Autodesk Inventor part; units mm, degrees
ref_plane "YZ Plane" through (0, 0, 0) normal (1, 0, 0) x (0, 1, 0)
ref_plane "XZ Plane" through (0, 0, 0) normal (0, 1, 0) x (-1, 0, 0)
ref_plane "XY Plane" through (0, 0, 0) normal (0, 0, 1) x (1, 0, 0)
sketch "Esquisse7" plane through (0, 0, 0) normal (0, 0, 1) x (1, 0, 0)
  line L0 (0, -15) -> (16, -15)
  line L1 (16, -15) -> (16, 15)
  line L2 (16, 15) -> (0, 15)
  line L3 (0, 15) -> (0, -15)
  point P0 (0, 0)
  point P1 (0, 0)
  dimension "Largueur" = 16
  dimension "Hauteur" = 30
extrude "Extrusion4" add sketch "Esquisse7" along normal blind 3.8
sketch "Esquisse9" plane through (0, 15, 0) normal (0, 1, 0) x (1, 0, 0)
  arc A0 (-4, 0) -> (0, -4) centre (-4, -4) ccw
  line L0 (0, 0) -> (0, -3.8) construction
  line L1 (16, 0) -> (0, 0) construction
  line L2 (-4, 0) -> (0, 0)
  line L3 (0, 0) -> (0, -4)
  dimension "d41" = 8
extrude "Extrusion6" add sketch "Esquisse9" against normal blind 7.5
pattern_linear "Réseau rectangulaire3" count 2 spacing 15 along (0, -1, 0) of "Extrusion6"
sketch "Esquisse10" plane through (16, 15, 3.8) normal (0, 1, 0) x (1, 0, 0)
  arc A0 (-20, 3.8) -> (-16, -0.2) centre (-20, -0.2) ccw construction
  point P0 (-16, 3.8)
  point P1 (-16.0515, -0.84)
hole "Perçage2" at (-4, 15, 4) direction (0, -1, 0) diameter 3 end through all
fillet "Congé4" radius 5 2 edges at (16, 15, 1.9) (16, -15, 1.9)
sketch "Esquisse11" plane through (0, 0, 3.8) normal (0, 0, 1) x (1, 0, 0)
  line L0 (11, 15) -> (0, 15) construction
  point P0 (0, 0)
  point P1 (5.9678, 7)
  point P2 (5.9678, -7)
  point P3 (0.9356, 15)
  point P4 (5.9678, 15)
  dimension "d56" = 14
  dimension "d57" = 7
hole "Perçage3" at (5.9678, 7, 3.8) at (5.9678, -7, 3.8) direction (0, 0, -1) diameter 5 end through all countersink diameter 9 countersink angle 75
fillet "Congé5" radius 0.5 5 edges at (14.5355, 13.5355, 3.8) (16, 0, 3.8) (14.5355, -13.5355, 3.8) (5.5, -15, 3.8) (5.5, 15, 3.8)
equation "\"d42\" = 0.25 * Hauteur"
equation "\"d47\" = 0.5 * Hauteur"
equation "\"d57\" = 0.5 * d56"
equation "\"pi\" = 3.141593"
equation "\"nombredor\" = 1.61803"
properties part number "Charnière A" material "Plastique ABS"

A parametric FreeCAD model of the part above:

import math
import FreeCAD as App
import Part
import Sketcher
from FreeCAD import Vector


def edges_at(feature, points):
    """Names of the edges that pass closest to the given points."""
    edges = feature.Shape.Edges
    near = lambda p: min(range(len(edges)), key=lambda i: edges[i].distToShape(Part.Vertex(*p))[0])
    return sorted({f"Edge{near(p) + 1}" for p in points})


def add_polygon(sketch, points):
    """Adds a closed chain of lines whose ends are joined by coincident constraints."""
    first, n = sketch.GeometryCount, len(points)
    for a, b in zip(points, points[1:] + points[:1]):
        sketch.addGeometry(Part.LineSegment(App.Vector(*a, 0), App.Vector(*b, 0)), False)
    for i in range(n):
        sketch.addConstraint(Sketcher.Constraint("Coincident", first + i, 2, first + (i + 1) % n, 1))

doc = App.newDocument("Part")
body = doc.addObject("PartDesign::Body", "Body")

# Sketch on XY plane
sketch1 = body.newObject("Sketcher::SketchObject", "Sketch")
sketch1.AttachmentSupport = (doc.getObject("XY_Plane"), [""])
sketch1.MapMode = "FlatFace"
add_polygon(sketch1, [(0, 15), (0, -15), (16, -15), (16, 15)])  # lines 0-3
sketch1.addConstraint(Sketcher.Constraint("Vertical", 0))
sketch1.addConstraint(Sketcher.Constraint("Horizontal", 1))
sketch1.addConstraint(Sketcher.Constraint("Vertical", 2))
sketch1.addConstraint(Sketcher.Constraint("Horizontal", 3))
sketch1.addConstraint(Sketcher.Constraint("Symmetric", 0, 2, 3, 2, -1, 1))
sketch1.addConstraint(Sketcher.Constraint("DistanceX", 1, 1, 1, 2, 16.0))
sketch1.addConstraint(Sketcher.Constraint("DistanceY", 0, 2, 0, 1, 30.0))
pad1 = body.newObject("PartDesign::Pad", "Pad")
pad1.Profile = sketch1
pad1.Length = 3.8

# Sketch on XZ plane
sketch2 = body.newObject("Sketcher::SketchObject", "Sketch001")
sketch2.AttachmentSupport = (doc.getObject("XZ_Plane"), [""])
sketch2.MapMode = "FlatFace"
sketch2.AttachmentOffset = App.Placement(Vector(0, 0, -15), App.Rotation())
sketch2.addGeometry(Part.LineSegment(Vector(0, 0, 0), Vector(-4, 0, 0)), False)
sketch2.addGeometry(Part.ArcOfCircle(Part.Circle(Vector(-4, 4, 0), Vector(0, 0, 1), 4), math.radians(0), math.radians(270)), False)
sketch2.addGeometry(Part.LineSegment(Vector(0, 4, 0), Vector(0, 0, 0)), False)
sketch2.addConstraint(Sketcher.Constraint("Tangent", 0, 2, 1, 2))
sketch2.addConstraint(Sketcher.Constraint("Tangent", 1, 1, 2, 1))
sketch2.addConstraint(Sketcher.Constraint("Coincident", 2, 2, 0, 1))
sketch2.addConstraint(Sketcher.Constraint("Horizontal", 0))
sketch2.addConstraint(Sketcher.Constraint("Vertical", 2))
sketch2.addConstraint(Sketcher.Constraint("Coincident", 2, 2, -1, 1))
sketch2.addConstraint(Sketcher.Constraint("Radius", 1, 4.0))
pad2 = body.newObject("PartDesign::Pad", "Pad001")
pad2.Profile = sketch2
pad2.Length = 7.5
doc.recompute()

linearpattern = body.newObject("PartDesign::LinearPattern", "LinearPattern")
linearpattern.Originals = [pad2]
linearpattern.Direction = (doc.getObject("Y_Axis"), [""])
linearpattern.Mode = "offset"
linearpattern.Offset = 15
linearpattern.Occurrences = 2
linearpattern.Reversed = True
body.Tip = linearpattern

# Sketch on XZ plane
sketch3 = body.newObject("Sketcher::SketchObject", "Sketch002")
sketch3.AttachmentSupport = (doc.getObject("XZ_Plane"), [""])
sketch3.MapMode = "FlatFace"
sketch3.AttachmentOffset = App.Placement(Vector(0, 0, -15), App.Rotation())
sketch3.addGeometry(Part.Circle(Vector(-4, 4, 0), Vector(0, 0, 1), 1.5), False)
sketch3.addConstraint(Sketcher.Constraint("Diameter", 0, 3.0))
sketch3.addConstraint(Sketcher.Constraint("DistanceX", 0, 3, -1, 1, 4.0))
sketch3.addConstraint(Sketcher.Constraint("DistanceY", -1, 1, 0, 3, 4.0))
doc.recompute()
hole = body.newObject("PartDesign::Hole", "Hole")
hole.Profile = sketch3
hole.ThreadType = "None"
hole.Diameter = 3
hole.DepthType = "ThroughAll"
hole.Reversed = True
doc.recompute()

fillet = body.newObject("PartDesign::Fillet", "Fillet")
fillet.Base = (hole, edges_at(hole, [(16, 15, 1.9), (16, -15, 1.9)]))
fillet.Radius = 5

# Sketch on XY plane
sketch4 = body.newObject("Sketcher::SketchObject", "Sketch003")
sketch4.AttachmentSupport = (doc.getObject("XY_Plane"), [""])
sketch4.MapMode = "FlatFace"
sketch4.AttachmentOffset = App.Placement(Vector(0, 0, 3.8), App.Rotation())
sketch4.addGeometry(Part.Circle(Vector(6, 7, 0), Vector(0, 0, 1), 2.5), False)
sketch4.addGeometry(Part.Circle(Vector(6, -7, 0), Vector(0, 0, 1), 2.5), False)
sketch4.addConstraint(Sketcher.Constraint("Equal", 0, 1))
sketch4.addConstraint(Sketcher.Constraint("Symmetric", 0, 3, 1, 3, -1))
sketch4.addConstraint(Sketcher.Constraint("Diameter", 0, 5.0))
sketch4.addConstraint(Sketcher.Constraint("DistanceY", -1, 1, 0, 3, 7.0))
sketch4.addConstraint(Sketcher.Constraint("DistanceX", -1, 1, 0, 3, 5.9678))
doc.recompute()
hole2 = body.newObject("PartDesign::Hole", "Hole001")
hole2.Profile = sketch4
hole2.ThreadType = "None"
hole2.Diameter = 5
hole2.DepthType = "ThroughAll"
hole2.HoleCutType = "Countersink"
hole2.HoleCutDiameter = 9
hole2.HoleCutCountersinkAngle = 75
doc.recompute()

fillet2 = body.newObject("PartDesign::Fillet", "Fillet001")
fillet2.Base = (hole2, edges_at(hole2, [
    (14.536, 13.536, 3.8),
    (16, 0, 3.8),
    (14.536, -13.536, 3.8),
    (5.5, -15, 3.8),
    (5.5, 15, 3.8),
]))
fillet2.Radius = 0.5

doc.recompute()
